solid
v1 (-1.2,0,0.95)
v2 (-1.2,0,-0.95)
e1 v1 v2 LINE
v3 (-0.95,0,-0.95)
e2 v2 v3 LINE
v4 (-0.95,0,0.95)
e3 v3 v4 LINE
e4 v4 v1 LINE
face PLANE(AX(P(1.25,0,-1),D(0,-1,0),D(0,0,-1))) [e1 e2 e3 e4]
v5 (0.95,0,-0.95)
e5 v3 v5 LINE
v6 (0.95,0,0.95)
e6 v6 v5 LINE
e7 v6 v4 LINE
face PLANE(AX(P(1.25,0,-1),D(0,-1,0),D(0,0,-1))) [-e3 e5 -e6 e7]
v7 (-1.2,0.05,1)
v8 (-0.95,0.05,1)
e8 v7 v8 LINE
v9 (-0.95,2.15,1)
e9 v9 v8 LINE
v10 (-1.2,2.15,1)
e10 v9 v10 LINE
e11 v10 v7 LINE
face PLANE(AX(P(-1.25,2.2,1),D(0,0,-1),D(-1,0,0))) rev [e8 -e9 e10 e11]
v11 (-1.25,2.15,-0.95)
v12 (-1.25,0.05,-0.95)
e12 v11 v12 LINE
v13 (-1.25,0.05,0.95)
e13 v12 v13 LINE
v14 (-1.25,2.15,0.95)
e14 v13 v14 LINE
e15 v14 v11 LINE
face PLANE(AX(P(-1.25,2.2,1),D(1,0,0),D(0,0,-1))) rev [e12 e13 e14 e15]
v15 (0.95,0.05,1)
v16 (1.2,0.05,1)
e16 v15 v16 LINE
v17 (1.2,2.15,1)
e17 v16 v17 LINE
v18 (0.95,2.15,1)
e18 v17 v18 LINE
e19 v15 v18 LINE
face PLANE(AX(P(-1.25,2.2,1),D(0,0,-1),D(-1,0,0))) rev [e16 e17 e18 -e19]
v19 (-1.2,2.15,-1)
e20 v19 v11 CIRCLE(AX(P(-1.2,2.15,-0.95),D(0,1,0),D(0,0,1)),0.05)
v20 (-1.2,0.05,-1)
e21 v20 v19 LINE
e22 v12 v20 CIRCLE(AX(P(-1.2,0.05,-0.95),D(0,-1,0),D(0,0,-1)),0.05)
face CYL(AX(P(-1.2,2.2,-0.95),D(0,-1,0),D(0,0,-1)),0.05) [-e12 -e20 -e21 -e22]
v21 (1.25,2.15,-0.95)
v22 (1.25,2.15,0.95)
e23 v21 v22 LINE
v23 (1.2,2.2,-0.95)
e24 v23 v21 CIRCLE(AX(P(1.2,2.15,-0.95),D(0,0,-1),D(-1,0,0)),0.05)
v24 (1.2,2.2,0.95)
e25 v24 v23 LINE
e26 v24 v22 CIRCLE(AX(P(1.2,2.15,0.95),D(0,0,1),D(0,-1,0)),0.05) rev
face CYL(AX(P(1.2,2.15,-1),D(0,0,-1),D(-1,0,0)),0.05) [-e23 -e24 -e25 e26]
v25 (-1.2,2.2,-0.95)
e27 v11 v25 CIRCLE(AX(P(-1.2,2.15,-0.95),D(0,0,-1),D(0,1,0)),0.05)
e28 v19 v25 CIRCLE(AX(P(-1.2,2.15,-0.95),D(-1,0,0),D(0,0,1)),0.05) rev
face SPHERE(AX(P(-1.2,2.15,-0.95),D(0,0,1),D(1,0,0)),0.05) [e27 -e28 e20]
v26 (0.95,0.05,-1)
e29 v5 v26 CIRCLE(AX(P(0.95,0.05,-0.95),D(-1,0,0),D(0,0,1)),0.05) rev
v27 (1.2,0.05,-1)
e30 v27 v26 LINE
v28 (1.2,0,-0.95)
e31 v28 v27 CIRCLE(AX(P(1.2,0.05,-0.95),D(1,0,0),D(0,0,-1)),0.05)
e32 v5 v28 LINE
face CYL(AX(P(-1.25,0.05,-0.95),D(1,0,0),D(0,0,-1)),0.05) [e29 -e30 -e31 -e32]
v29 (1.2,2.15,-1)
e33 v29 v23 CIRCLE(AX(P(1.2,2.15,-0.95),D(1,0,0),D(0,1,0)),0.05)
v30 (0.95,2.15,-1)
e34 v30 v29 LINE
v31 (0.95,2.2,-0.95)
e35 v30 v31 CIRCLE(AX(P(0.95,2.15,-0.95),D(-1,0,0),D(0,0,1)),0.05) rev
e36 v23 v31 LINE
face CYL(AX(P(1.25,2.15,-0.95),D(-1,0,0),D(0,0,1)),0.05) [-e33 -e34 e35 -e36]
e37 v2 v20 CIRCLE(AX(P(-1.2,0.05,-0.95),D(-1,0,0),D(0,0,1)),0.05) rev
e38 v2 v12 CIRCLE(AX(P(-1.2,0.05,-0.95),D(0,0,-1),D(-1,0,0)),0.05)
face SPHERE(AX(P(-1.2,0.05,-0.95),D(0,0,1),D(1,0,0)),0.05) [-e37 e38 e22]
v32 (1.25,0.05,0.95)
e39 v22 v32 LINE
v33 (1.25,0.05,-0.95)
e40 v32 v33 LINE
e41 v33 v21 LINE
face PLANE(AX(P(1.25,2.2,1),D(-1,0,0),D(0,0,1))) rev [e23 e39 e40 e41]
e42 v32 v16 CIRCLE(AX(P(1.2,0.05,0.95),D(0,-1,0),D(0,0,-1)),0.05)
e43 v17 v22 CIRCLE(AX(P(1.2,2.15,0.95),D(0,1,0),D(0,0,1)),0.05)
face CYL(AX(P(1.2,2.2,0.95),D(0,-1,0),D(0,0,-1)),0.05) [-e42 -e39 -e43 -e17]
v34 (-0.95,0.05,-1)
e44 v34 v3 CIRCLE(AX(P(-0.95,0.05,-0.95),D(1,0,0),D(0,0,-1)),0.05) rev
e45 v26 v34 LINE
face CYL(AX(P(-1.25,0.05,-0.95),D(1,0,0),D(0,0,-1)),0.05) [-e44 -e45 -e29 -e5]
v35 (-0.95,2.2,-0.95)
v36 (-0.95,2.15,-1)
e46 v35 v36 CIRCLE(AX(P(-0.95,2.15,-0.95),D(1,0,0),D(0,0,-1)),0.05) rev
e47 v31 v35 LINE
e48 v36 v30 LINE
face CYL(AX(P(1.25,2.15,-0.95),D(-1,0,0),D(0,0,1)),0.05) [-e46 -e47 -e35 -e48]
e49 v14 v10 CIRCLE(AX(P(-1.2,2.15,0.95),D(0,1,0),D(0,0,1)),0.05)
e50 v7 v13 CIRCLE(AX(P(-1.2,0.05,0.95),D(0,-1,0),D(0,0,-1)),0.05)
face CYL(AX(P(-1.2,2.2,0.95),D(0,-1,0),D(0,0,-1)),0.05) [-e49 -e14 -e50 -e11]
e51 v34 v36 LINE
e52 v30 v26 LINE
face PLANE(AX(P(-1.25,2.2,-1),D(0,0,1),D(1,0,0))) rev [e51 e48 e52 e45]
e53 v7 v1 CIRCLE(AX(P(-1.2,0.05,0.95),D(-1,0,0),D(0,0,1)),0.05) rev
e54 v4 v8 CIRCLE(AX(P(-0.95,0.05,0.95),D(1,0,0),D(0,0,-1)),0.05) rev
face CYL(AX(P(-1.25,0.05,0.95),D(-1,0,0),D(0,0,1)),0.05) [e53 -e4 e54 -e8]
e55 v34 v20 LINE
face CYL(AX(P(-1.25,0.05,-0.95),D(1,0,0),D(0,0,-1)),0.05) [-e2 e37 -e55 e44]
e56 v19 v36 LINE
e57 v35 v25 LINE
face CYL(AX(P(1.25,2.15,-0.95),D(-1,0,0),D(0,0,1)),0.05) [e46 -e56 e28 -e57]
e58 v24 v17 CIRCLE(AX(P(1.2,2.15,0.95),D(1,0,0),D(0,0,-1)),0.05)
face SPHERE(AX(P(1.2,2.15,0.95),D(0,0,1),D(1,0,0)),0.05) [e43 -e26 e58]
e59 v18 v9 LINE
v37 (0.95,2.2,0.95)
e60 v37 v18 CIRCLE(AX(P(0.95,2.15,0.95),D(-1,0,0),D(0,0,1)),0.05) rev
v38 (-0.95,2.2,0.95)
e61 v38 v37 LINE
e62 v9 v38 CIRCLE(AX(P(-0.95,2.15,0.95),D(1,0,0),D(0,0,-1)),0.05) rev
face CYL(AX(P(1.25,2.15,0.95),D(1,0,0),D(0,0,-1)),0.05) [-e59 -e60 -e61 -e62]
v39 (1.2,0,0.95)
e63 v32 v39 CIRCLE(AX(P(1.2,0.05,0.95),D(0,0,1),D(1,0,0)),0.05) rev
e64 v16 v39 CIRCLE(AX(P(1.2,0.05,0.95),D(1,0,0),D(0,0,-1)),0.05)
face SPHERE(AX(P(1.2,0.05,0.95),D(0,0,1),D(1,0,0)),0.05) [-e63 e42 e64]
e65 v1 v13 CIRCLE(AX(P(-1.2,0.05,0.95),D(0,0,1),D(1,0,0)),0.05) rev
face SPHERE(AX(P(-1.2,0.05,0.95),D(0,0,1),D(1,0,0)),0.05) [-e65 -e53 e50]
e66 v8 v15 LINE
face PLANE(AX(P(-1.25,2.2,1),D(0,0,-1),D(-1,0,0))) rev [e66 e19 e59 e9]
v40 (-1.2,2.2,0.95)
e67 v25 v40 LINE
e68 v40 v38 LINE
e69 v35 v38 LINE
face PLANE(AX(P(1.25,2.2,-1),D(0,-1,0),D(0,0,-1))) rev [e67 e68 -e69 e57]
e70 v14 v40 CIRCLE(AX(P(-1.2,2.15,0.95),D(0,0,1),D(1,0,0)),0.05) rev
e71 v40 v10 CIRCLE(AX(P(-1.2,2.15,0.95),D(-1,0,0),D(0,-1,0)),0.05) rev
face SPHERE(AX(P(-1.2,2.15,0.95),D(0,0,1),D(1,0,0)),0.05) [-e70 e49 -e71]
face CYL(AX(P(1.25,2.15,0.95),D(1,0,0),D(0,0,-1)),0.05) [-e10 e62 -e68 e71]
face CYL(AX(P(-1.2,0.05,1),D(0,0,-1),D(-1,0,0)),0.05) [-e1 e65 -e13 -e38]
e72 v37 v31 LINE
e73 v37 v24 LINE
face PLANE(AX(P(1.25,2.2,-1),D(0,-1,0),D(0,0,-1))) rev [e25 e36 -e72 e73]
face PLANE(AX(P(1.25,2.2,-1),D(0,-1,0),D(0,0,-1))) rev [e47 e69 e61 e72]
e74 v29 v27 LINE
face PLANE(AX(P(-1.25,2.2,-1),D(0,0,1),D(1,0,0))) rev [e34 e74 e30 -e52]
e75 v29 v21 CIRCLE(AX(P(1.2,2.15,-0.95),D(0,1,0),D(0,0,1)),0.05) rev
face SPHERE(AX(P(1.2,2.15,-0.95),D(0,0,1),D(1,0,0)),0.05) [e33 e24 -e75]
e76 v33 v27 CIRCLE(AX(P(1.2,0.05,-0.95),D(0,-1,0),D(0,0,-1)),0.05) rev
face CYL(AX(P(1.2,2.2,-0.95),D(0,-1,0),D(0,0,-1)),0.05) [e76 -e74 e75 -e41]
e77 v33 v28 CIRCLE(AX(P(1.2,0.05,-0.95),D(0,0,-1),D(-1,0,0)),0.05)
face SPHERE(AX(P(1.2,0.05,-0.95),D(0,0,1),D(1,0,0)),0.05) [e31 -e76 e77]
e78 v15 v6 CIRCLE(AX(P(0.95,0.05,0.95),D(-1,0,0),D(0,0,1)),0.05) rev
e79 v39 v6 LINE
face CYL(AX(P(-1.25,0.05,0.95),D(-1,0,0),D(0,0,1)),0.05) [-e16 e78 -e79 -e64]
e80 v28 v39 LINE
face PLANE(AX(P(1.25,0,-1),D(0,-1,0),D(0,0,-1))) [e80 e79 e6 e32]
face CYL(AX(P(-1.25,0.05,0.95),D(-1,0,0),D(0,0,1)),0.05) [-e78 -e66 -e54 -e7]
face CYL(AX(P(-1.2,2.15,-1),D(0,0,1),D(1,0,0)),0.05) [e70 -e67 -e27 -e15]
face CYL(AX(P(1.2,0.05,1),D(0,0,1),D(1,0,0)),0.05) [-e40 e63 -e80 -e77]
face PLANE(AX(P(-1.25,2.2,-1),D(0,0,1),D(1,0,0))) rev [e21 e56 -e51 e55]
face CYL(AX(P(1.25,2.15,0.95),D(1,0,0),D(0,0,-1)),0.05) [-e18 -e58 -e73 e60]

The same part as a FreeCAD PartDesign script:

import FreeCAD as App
import Part
import Sketcher
from FreeCAD import Vector


def add_polygon(sketch, points):
    """Adds a closed chain of lines whose ends are joined by coincident constraints."""
    first, n = sketch.GeometryCount, len(points)
    for a, b in zip(points, points[1:] + points[:1]):
        sketch.addGeometry(Part.LineSegment(App.Vector(*a, 0), App.Vector(*b, 0)), False)
    for i in range(n):
        sketch.addConstraint(Sketcher.Constraint("Coincident", first + i, 2, first + (i + 1) % n, 1))

doc = App.newDocument("Part")
body = doc.addObject("PartDesign::Body", "Body")

sketch1 = body.newObject("Sketcher::SketchObject", "Sketch")
sketch1.AttachmentSupport = (doc.getObject("XZ_Plane"), [""])
sketch1.MapMode = "FlatFace"
add_polygon(sketch1, [(-1.2, -1), (-1.2, 1), (1.2, 1), (1.2, -1)])
sketch1.addConstraint([
    Sketcher.Constraint("Vertical", 0),
    Sketcher.Constraint("Horizontal", 1),
    Sketcher.Constraint("Vertical", 2),
    Sketcher.Constraint("Horizontal", 3),
    Sketcher.Constraint("Symmetric", 0, 2, 2, 2, -1, 1),
    Sketcher.Constraint("DistanceY", 0, 1, 0, 2, 2.0),
    Sketcher.Constraint("DistanceX", 1, 1, 1, 2, 2.5),
])
pad1 = body.newObject("PartDesign::Pad", "Pad")
pad1.Profile = sketch1
pad1.Length = 2.2
pad1.Reversed = True
doc.recompute()

fillet = body.newObject("PartDesign::Fillet", "Fillet")
fillet.Base = (pad1, ["Edge1"])
fillet.UseAllEdges = True
fillet.Radius = 0.05

doc.recompute()
